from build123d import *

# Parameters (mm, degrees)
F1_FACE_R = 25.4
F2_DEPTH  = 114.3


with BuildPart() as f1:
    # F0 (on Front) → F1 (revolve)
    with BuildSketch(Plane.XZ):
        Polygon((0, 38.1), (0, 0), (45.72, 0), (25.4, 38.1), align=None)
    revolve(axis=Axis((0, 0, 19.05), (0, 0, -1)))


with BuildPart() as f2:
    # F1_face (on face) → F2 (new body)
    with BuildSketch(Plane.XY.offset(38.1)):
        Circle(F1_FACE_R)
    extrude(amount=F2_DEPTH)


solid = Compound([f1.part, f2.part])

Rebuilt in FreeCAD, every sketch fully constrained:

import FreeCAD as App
import Part
import Sketcher
Q = App.Units.Quantity

doc = App.newDocument("Part")
body = doc.addObject("PartDesign::Body", "Body")

# Sketch on XZ plane
sketch1 = body.newObject("Sketcher::SketchObject", "Sketch")
sketch1.AttachmentSupport = (doc.getObject("XZ_Plane"), [""])
sketch1.MapMode = "FlatFace"
sketch1.addGeometry([
    Part.LineSegment(App.Vector(0, 38.1, 0), App.Vector(0, 0, 0)),
    Part.LineSegment(App.Vector(0, 0, 0), App.Vector(45.72, 0, 0)),
    Part.LineSegment(App.Vector(45.72, 0, 0), App.Vector(25.4, 38.1, 0)),
    Part.LineSegment(App.Vector(25.4, 38.1, 0), App.Vector(0, 38.1, 0)),
], False)
sketch1.addConstraint([
    Sketcher.Constraint("Coincident", 0, 2, 1, 1),
    Sketcher.Constraint("Coincident", 1, 2, 2, 1),
    Sketcher.Constraint("Coincident", 2, 2, 3, 1),
    Sketcher.Constraint("Coincident", 3, 2, 0, 1),
    Sketcher.Constraint("Vertical", 0),
    Sketcher.Constraint("Horizontal", 1),
    Sketcher.Constraint("Horizontal", 3),
    Sketcher.Constraint("Coincident", 0, 2, -1, 1),
    Sketcher.Constraint("DistanceX", 3, 2, 3, 1, Q("1 in")),
    Sketcher.Constraint("DistanceX", 1, 1, 1, 2, Q("1.8 in")),
    Sketcher.Constraint("DistanceY", 0, 2, 0, 1, Q("1.5 in")),
])
revolution = body.newObject("PartDesign::Revolution", "Revolution")
revolution.Profile = sketch1
revolution.ReferenceAxis = (sketch1, ["V_Axis"])
revolution.Angle = 360
body2 = doc.addObject("PartDesign::Body", "Body001")

# Sketch on XY plane
sketch2 = body2.newObject("Sketcher::SketchObject", "Sketch001")
sketch2.AttachmentSupport = (doc.getObject("XY_Plane001"), [""])
sketch2.MapMode = "FlatFace"
sketch2.AttachmentOffset = App.Placement(App.Vector(0, 0, 1.5 * 25.4), App.Rotation())
sketch2.addGeometry(Part.Circle(App.Vector(0, 0, 0), App.Vector(0, 0, 1), 25.4), False)
sketch2.addConstraint([
    Sketcher.Constraint("Coincident", 0, 3, -1, 1),
    Sketcher.Constraint("Diameter", 0, Q("2 in")),
])
pad1 = body2.newObject("PartDesign::Pad", "Pad")
pad1.Profile = sketch2
pad1.Length = Q("4.5 in")

doc.recompute()
